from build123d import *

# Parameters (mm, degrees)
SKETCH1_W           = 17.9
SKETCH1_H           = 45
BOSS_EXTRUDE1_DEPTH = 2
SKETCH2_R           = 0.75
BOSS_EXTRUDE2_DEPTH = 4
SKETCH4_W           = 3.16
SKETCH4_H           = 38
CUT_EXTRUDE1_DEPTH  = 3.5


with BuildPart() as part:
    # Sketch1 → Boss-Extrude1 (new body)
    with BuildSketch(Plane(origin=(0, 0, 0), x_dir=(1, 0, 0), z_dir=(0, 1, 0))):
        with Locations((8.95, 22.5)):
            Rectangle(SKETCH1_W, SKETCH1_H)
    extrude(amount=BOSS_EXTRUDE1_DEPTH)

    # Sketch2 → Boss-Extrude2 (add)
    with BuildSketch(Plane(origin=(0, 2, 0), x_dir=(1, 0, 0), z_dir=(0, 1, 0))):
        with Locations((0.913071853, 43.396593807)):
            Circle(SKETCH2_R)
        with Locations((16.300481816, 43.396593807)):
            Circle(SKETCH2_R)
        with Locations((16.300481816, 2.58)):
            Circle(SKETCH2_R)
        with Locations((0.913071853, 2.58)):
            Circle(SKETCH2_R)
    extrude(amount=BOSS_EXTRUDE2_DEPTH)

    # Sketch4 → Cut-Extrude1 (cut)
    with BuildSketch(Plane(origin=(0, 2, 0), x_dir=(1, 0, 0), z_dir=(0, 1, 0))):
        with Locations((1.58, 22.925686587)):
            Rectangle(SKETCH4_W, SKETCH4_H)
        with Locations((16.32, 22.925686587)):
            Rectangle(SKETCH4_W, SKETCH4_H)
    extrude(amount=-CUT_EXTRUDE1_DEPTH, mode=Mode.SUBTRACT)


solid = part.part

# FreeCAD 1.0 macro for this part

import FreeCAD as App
import Part
import Sketcher
from FreeCAD import Vector
Q = App.Units.Quantity


def add_polygon(sketch, points):
    """Adds a closed chain of lines whose ends are joined by coincident constraints."""
    first, n = sketch.GeometryCount, len(points)
    for a, b in zip(points, points[1:] + points[:1]):
        sketch.addGeometry(Part.LineSegment(App.Vector(*a, 0), App.Vector(*b, 0)), False)
    for i in range(n):
        sketch.addConstraint(Sketcher.Constraint("Coincident", first + i, 2, first + (i + 1) % n, 1))

doc = App.newDocument("Part")
body = doc.addObject("PartDesign::Body", "Body")

sketch1 = body.newObject("Sketcher::SketchObject", "Sketch")
sketch1.AttachmentSupport = (doc.getObject("XZ_Plane"), [""])
sketch1.MapMode = "FlatFace"
add_polygon(sketch1, [(0, -45), (0, 0), (18, 0), (18, -45)])
sketch1.addConstraint(Sketcher.Constraint("Vertical", 0))
sketch1.addConstraint(Sketcher.Constraint("Horizontal", 1))
sketch1.addConstraint(Sketcher.Constraint("Vertical", 2))
sketch1.addConstraint(Sketcher.Constraint("Horizontal", 3))
sketch1.addConstraint(Sketcher.Constraint("Coincident", 0, 2, -1, 1))
sketch1.addConstraint(Sketcher.Constraint("DistanceY", 0, 1, 0, 2, Q("45 mm")))
sketch1.addConstraint(Sketcher.Constraint("DistanceX", 1, 1, 1, 2, Q("17.9 mm")))
pad1 = body.newObject("PartDesign::Pad", "Pad")
pad1.Profile = sketch1
pad1.Length = 2
pad1.Reversed = True

sketch2 = body.newObject("Sketcher::SketchObject", "Sketch001")
sketch2.AttachmentSupport = (doc.getObject("XZ_Plane"), [""])
sketch2.MapMode = "FlatFace"
sketch2.AttachmentOffset = App.Placement(Vector(0, 0, -2), App.Rotation())
sketch2.addGeometry(Part.Circle(Vector(0.9, -43.4, 0), Vector(0, 0, 1), 0.8), False)
sketch2.addGeometry(Part.Circle(Vector(16.3, -43.4, 0), Vector(0, 0, 1), 0.8), False)
sketch2.addGeometry(Part.Circle(Vector(16.3, -2.6, 0), Vector(0, 0, 1), 0.8), False)
sketch2.addGeometry(Part.Circle(Vector(0.9, -2.6, 0), Vector(0, 0, 1), 0.8), False)
sketch2.addConstraint(Sketcher.Constraint("Equal", 0, 1))
sketch2.addConstraint(Sketcher.Constraint("Equal", 1, 2))
sketch2.addConstraint(Sketcher.Constraint("Equal", 2, 3))
sketch2.addConstraint(Sketcher.Constraint("Horizontal", 0, 3, 1, 3))
sketch2.addConstraint(Sketcher.Constraint("Horizontal", 2, 3, 3, 3))
sketch2.addConstraint(Sketcher.Constraint("Vertical", 1, 3, 2, 3))
sketch2.addConstraint(Sketcher.Constraint("Vertical", 0, 3, 3, 3))
sketch2.addConstraint(Sketcher.Constraint("Diameter", 0, Q("1.5 mm")))
sketch2.addConstraint(Sketcher.Constraint("DistanceY", 2, 3, -1, 1, Q("2.58 mm")))
sketch2.addConstraint(Sketcher.Constraint("DistanceX", -1, 1, 0, 3, Q("0.913072 mm")))
sketch2.addConstraint(Sketcher.Constraint("DistanceX", -1, 1, 1, 3, Q("16.300482 mm")))
sketch2.addConstraint(Sketcher.Constraint("DistanceY", 0, 3, -1, 1, Q("43.396594 mm")))
pad2 = body.newObject("PartDesign::Pad", "Pad001")
pad2.Profile = sketch2
pad2.Length = 4
pad2.Reversed = True

sketch3 = body.newObject("Sketcher::SketchObject", "Sketch002")
sketch3.AttachmentSupport = (doc.getObject("XZ_Plane"), [""])
sketch3.MapMode = "FlatFace"
sketch3.AttachmentOffset = App.Placement(Vector(0, 0, -2), App.Rotation())
add_polygon(sketch3, [(0, -41.9), (0, -3.9), (3.2, -3.9), (3.2, -41.9)])
add_polygon(sketch3, [(14.7, -41.9), (14.7, -3.9), (17.9, -3.9), (17.9, -41.9)])
sketch3.addConstraint(Sketcher.Constraint("Vertical", 0))
sketch3.addConstraint(Sketcher.Constraint("Horizontal", 1))
sketch3.addConstraint(Sketcher.Constraint("Vertical", 2))
sketch3.addConstraint(Sketcher.Constraint("Horizontal", 3))
sketch3.addConstraint(Sketcher.Constraint("Vertical", 4))
sketch3.addConstraint(Sketcher.Constraint("Horizontal", 5))
sketch3.addConstraint(Sketcher.Constraint("Vertical", 6))
sketch3.addConstraint(Sketcher.Constraint("Horizontal", 7))
sketch3.addConstraint(Sketcher.Constraint("PointOnObject", 0, 2, -2))
sketch3.addConstraint(Sketcher.Constraint("Horizontal", 1, 2, 4, 2))
sketch3.addConstraint(Sketcher.Constraint("Horizontal", 3, 2, 6, 2))
sketch3.addConstraint(Sketcher.Constraint("Equal", 3, 5))
sketch3.addConstraint(Sketcher.Constraint("DistanceY", 0, 1, 0, 2, Q("38 mm")))
sketch3.addConstraint(Sketcher.Constraint("DistanceX", 1, 1, 1, 2, Q("3.16 mm")))
sketch3.addConstraint(Sketcher.Constraint("DistanceX", -1, 1, 5, 2, Q("17.9 mm")))
sketch3.addConstraint(Sketcher.Constraint("DistanceY", 0, 2, -1, 1, Q("3.925687 mm")))
pocket1 = body.newObject("PartDesign::Pocket", "Pocket")
pocket1.Profile = sketch3
pocket1.Length = 3.5
pocket1.Reversed = True

doc.recompute()
